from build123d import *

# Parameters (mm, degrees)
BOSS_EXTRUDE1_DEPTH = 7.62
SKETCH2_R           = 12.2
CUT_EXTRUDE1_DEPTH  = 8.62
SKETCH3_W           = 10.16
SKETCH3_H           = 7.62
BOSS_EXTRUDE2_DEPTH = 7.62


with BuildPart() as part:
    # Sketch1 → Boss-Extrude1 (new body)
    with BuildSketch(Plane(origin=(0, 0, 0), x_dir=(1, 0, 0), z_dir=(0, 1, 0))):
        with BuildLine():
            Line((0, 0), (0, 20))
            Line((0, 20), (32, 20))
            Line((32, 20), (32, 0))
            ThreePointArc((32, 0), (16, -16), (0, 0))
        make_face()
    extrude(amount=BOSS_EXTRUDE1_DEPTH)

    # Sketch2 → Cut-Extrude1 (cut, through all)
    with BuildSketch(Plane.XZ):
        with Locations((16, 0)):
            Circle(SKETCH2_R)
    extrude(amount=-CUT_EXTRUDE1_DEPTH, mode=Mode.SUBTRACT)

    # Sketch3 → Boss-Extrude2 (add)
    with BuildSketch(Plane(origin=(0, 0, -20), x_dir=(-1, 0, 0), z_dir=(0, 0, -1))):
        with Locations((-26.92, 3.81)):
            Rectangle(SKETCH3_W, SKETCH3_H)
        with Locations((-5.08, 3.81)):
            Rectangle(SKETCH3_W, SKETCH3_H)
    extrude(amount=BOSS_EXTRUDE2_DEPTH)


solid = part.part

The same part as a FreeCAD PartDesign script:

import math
import FreeCAD as App
import Part
import Sketcher

doc = App.newDocument("Part")
body = doc.addObject("PartDesign::Body", "Body")

# Sketch on XZ plane
sketch1 = doc.addObject("Sketcher::SketchObject", "Sketch")
body.addObject(sketch1)
sketch1.AttachmentSupport = (doc.XZ_Plane, [""])
sketch1.MapMode = "FlatFace"
sketch1.addGeometry([
    Part.LineSegment(App.Vector(0, -20, 0), App.Vector(0, 0, 0)),
    Part.ArcOfCircle(Part.Circle(App.Vector(16, 0, 0), App.Vector(0, 0, 1), 16), math.radians(0), math.radians(180)),
    Part.LineSegment(App.Vector(32, 0, 0), App.Vector(32, -20, 0)),
    Part.LineSegment(App.Vector(32, -20, 0), App.Vector(0, -20, 0)),
], False)
sketch1.addConstraint([
    Sketcher.Constraint("Tangent", 0, 2, 1, 2),
    Sketcher.Constraint("Tangent", 1, 1, 2, 1),
    Sketcher.Constraint("Coincident", 2, 2, 3, 1),
    Sketcher.Constraint("Coincident", 3, 2, 0, 1),
    Sketcher.Constraint("Vertical", 0),
    Sketcher.Constraint("Vertical", 2),
    Sketcher.Constraint("Horizontal", 3),
    Sketcher.Constraint("Coincident", 0, 2, -1, 1),
    Sketcher.Constraint("Radius", 1, 16.0),
    Sketcher.Constraint("DistanceY", 0, 1, 0, 2, 20.0),
])
pad1 = doc.addObject("PartDesign::Pad", "Pad")
body.addObject(pad1)
pad1.Profile = sketch1
pad1.Length = 7.62
pad1.Reversed = True

# Sketch on XZ plane
sketch2 = doc.addObject("Sketcher::SketchObject", "Sketch001")
body.addObject(sketch2)
sketch2.AttachmentSupport = (doc.XZ_Plane, [""])
sketch2.MapMode = "FlatFace"
sketch2.addGeometry(Part.Circle(App.Vector(16, 0, 0), App.Vector(0, 0, 1), 12), False)
sketch2.addConstraint([
    Sketcher.Constraint("PointOnObject", 0, 3, -1),
    Sketcher.Constraint("Diameter", 0, 24.4),
    Sketcher.Constraint("DistanceX", -1, 1, 0, 3, 16.0),
])
pocket1 = doc.addObject("PartDesign::Pocket", "Pocket")
body.addObject(pocket1)
pocket1.Profile = sketch2
pocket1.Type = "ThroughAll"

# Sketch on XY plane
sketch3 = doc.addObject("Sketcher::SketchObject", "Sketch002")
body.addObject(sketch3)
sketch3.AttachmentSupport = (doc.XY_Plane, [""])
sketch3.MapMode = "FlatFace"
sketch3.AttachmentOffset = App.Placement(App.Vector(0, 0, -20), App.Rotation())
sketch3.addGeometry([
    Part.LineSegment(App.Vector(32, 8, 0), App.Vector(32, 0, 0)),  # 0
    Part.LineSegment(App.Vector(32, 0, 0), App.Vector(22, 0, 0)),  # 1
    Part.LineSegment(App.Vector(22, 0, 0), App.Vector(22, 8, 0)),  # 2
    Part.LineSegment(App.Vector(22, 8, 0), App.Vector(32, 8, 0)),  # 3
    Part.LineSegment(App.Vector(10, 8, 0), App.Vector(10, 0, 0)),  # 4
    Part.LineSegment(App.Vector(10, 0, 0), App.Vector(0, 0, 0)),  # 5
    Part.LineSegment(App.Vector(0, 0, 0), App.Vector(0, 8, 0)),  # 6
    Part.LineSegment(App.Vector(0, 8, 0), App.Vector(10, 8, 0)),  # 7
], False)
sketch3.addConstraint([
    Sketcher.Constraint("Coincident", 0, 2, 1, 1),
    Sketcher.Constraint("Coincident", 1, 2, 2, 1),
    Sketcher.Constraint("Coincident", 2, 2, 3, 1),
    Sketcher.Constraint("Coincident", 3, 2, 0, 1),
    Sketcher.Constraint("Coincident", 4, 2, 5, 1),
    Sketcher.Constraint("Coincident", 5, 2, 6, 1),
    Sketcher.Constraint("Coincident", 6, 2, 7, 1),
    Sketcher.Constraint("Coincident", 7, 2, 4, 1),
    Sketcher.Constraint("Vertical", 0),
    Sketcher.Constraint("Horizontal", 1),
    Sketcher.Constraint("Vertical", 2),
    Sketcher.Constraint("Horizontal", 3),
    Sketcher.Constraint("Vertical", 4),
    Sketcher.Constraint("Horizontal", 5),
    Sketcher.Constraint("Vertical", 6),
    Sketcher.Constraint("Horizontal", 7),
    Sketcher.Constraint("Coincident", 5, 2, -1, 1),
    Sketcher.Constraint("PointOnObject", 0, 2, -1),
    Sketcher.Constraint("Horizontal", 3, 2, 6, 2),
    Sketcher.Constraint("Equal", 3, 5),
    Sketcher.Constraint("DistanceX", -1, 1, 0, 2, 32.0),
    Sketcher.Constraint("DistanceX", 1, 2, 1, 1, 10.16),
    Sketcher.Constraint("DistanceY", 0, 2, 0, 1, 7.62),
])
pad2 = doc.addObject("PartDesign::Pad", "Pad001")
body.addObject(pad2)
pad2.Profile = sketch3
pad2.Length = 7.62
pad2.Reversed = True

doc.recompute()
